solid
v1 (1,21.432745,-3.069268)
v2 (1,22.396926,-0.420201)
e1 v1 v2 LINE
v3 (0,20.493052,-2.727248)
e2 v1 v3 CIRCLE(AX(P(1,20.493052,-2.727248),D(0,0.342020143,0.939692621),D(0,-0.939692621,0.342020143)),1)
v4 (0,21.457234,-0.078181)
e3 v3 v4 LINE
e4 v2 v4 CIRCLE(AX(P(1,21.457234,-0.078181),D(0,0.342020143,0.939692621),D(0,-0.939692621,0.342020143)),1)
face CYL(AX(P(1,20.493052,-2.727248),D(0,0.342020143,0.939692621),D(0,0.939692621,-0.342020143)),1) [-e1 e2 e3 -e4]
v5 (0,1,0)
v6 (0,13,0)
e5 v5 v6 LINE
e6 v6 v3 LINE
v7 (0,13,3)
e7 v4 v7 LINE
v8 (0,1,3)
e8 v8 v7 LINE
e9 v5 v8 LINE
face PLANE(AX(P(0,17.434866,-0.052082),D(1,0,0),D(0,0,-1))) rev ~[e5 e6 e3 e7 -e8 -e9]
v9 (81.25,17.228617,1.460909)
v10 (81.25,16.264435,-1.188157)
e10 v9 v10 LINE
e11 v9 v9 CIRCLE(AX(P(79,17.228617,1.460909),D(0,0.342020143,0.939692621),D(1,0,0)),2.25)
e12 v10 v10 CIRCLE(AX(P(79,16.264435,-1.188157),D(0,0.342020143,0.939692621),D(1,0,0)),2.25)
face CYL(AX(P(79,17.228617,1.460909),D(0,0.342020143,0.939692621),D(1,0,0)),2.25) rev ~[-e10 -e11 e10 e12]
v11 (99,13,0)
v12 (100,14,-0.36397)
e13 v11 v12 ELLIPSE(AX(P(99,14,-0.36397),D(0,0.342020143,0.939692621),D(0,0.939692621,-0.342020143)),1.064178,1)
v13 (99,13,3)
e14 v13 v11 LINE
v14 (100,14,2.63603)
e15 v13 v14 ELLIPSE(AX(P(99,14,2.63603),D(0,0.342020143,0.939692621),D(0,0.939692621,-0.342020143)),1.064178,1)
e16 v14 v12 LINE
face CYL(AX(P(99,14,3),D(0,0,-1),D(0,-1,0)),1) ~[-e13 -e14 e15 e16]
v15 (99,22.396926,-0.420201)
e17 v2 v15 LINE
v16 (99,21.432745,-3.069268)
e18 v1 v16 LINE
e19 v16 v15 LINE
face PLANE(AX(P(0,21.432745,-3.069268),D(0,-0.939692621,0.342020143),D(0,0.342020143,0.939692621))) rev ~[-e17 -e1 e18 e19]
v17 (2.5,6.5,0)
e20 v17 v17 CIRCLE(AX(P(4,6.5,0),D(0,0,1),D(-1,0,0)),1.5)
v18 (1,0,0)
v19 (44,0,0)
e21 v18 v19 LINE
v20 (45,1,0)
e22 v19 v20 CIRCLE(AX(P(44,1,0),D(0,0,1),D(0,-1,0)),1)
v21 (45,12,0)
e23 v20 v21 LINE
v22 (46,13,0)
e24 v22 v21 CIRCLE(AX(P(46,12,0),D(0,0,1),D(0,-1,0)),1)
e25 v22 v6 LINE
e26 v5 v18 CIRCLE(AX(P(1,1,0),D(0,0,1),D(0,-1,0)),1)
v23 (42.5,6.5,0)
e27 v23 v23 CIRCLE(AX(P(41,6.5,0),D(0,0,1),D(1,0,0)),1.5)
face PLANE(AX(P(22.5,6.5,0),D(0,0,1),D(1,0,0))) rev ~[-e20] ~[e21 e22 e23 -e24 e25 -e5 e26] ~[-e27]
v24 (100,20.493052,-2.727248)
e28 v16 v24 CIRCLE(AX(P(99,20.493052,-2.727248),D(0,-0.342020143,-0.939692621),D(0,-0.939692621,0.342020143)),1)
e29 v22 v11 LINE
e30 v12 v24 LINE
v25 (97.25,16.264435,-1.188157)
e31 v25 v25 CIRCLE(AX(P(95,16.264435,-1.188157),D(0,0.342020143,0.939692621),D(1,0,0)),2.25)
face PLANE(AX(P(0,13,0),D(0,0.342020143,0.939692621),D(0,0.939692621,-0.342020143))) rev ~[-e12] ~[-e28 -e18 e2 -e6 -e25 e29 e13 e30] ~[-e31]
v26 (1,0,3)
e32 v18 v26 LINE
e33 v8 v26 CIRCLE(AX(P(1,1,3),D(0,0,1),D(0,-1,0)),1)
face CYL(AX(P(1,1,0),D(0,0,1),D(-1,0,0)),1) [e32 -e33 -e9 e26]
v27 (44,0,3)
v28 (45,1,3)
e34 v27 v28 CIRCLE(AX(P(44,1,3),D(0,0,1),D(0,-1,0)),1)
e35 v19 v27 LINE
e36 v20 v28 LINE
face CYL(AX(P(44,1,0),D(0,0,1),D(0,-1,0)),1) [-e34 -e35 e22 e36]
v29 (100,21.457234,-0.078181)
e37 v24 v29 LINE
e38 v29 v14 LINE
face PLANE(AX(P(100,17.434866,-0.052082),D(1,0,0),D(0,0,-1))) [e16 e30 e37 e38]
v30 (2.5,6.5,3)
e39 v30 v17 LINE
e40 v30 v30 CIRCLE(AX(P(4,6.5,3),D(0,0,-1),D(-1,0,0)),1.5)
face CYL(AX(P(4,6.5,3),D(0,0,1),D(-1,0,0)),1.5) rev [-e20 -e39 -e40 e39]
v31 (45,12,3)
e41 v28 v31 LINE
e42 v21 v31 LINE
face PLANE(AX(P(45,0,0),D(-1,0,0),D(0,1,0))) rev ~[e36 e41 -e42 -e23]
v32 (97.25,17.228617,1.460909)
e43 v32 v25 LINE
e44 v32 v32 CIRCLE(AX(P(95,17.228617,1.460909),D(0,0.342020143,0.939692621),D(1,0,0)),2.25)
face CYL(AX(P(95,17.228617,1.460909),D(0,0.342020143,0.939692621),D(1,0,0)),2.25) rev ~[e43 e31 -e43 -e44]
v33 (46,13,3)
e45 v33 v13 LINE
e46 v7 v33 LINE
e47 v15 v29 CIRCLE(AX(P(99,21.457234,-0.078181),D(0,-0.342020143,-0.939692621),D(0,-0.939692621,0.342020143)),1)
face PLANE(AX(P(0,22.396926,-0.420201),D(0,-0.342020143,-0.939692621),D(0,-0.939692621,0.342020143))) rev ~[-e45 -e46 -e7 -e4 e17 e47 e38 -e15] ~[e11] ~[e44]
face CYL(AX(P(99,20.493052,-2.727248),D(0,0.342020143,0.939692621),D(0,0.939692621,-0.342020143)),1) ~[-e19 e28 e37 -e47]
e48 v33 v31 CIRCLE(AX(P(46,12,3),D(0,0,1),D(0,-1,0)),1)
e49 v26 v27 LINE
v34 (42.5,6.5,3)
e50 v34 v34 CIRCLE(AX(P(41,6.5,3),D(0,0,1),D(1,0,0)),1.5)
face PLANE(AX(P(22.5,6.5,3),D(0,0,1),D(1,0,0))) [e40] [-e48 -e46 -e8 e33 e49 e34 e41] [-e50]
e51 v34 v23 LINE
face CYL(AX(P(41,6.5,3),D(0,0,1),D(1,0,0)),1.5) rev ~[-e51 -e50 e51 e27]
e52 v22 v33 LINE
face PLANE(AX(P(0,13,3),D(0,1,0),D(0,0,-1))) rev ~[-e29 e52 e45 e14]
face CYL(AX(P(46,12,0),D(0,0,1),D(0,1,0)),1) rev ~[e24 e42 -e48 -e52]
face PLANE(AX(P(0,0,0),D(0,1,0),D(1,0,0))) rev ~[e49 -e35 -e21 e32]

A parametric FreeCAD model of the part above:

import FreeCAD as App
import Part
import Sketcher
Q = App.Units.Quantity


def edges_at(feature, points):
    """Names of the edges that pass closest to the given points."""
    edges = feature.Shape.Edges
    near = lambda p: min(range(len(edges)), key=lambda i: edges[i].distToShape(Part.Vertex(*p))[0])
    return sorted({f"Edge{near(p) + 1}" for p in points})


def add_polygon(sketch, points):
    """Adds a closed chain of lines whose ends are joined by coincident constraints."""
    first, n = sketch.GeometryCount, len(points)
    for a, b in zip(points, points[1:] + points[:1]):
        sketch.addGeometry(Part.LineSegment(App.Vector(*a, 0), App.Vector(*b, 0)), False)
    for i in range(n):
        sketch.addConstraint(Sketcher.Constraint("Coincident", first + i, 2, first + (i + 1) % n, 1))

doc = App.newDocument("Part")
params = doc.addObject("Spreadsheet::Sheet", "Params")
for row, (alias, value) in enumerate([
    ("sketch1_width", "45 mm"),
    ("sketch1_height", "13 mm"),
    ("pad1_length", "3 mm"),
    ("sketch2_diameter", "3 mm"),
    ("sketch3_height", "3 mm"),
    ("sketch3_length", "10 mm"),
    ("pad2_length", "100 mm"),
    ("fillet_radius", "1 mm"),
    ("sketch4_diameter", "4.5 mm"),
    ("linearpattern_pitch", "16 mm"),
], start=1):
    params.set(f"A{row}", alias)
    params.set(f"B{row}", "=" + value)
    params.setAlias(f"B{row}", alias)

body = doc.addObject("PartDesign::Body", "Body")

# Sketch on XY plane
sketch1 = doc.addObject("Sketcher::SketchObject", "Sketch")
body.addObject(sketch1)
sketch1.AttachmentSupport = (doc.XY_Plane, [""])
sketch1.MapMode = "FlatFace"
add_polygon(sketch1, [(0, 13), (0, 0), (45, 0), (45, 13)])  # lines 0-3
sketch1.addConstraint([
    Sketcher.Constraint("Vertical", 0),
    Sketcher.Constraint("Horizontal", 1),
    Sketcher.Constraint("Vertical", 2),
    Sketcher.Constraint("Horizontal", 3),
    Sketcher.Constraint("Coincident", 0, 2, -1, 1),
    Sketcher.Constraint("DistanceX", 1, 1, 1, 2, 45.0),
    Sketcher.Constraint("DistanceY", 0, 2, 0, 1, 13.0),
])
sketch1.setExpression("Constraints[9]", "Params.sketch1_width")
sketch1.setExpression("Constraints[10]", "Params.sketch1_height")
pad1 = doc.addObject("PartDesign::Pad", "Pad")
body.addObject(pad1)
pad1.Profile = sketch1
pad1.setExpression("Length", "Params.pad1_length")

# Sketch on XY plane
sketch2 = doc.addObject("Sketcher::SketchObject", "Sketch001")
body.addObject(sketch2)
sketch2.AttachmentSupport = (doc.XY_Plane, [""])
sketch2.MapMode = "FlatFace"
sketch2.AttachmentOffset = App.Placement(App.Vector(0, 0, 3), App.Rotation())
sketch2.addGeometry(Part.Circle(App.Vector(41, 6.5, 0), App.Vector(0, 0, 1), 1.5), False)
sketch2.addConstraint([
    Sketcher.Constraint("Diameter", 0, 3.0),
    Sketcher.Constraint("DistanceX", -1, 1, 0, 3, 41.0),
    Sketcher.Constraint("DistanceY", -1, 1, 0, 3, 6.5),
])
sketch2.setExpression("Constraints[0]", "Params.sketch2_diameter")
pocket1 = doc.addObject("PartDesign::Pocket", "Pocket")
body.addObject(pocket1)
pocket1.Profile = sketch2
pocket1.Type = "ThroughAll"
doc.recompute()

datumplane = doc.addObject("PartDesign::Plane", "DatumPlane")
body.addObject(datumplane)
datumplane.AttachmentSupport = (doc.YZ_Plane, [""])
datumplane.MapMode = "FlatFace"
datumplane.AttachmentOffset = App.Placement(App.Vector(0, 0, 22.5), App.Rotation())
mirrored = doc.addObject("PartDesign::Mirrored", "Mirrored")
body.addObject(mirrored)
mirrored.Originals = [pocket1]
mirrored.MirrorPlane = (datumplane, [""])
body.Tip = mirrored

# Sketch on YZ plane
sketch3 = doc.addObject("Sketcher::SketchObject", "Sketch002")
body.addObject(sketch3)
sketch3.AttachmentSupport = (doc.YZ_Plane, [""])
sketch3.MapMode = "FlatFace"
add_polygon(sketch3, [(21.4, -3.1), (13, 0), (13, 3), (22.4, -0.4)])  # lines 0-3
sketch3.addConstraint([
    Sketcher.Constraint("Vertical", 1),
    Sketcher.Constraint("PointOnObject", 0, 2, -1),
    Sketcher.Constraint("Parallel", 0, 2),
    Sketcher.Constraint("Perpendicular", 2, 3),
    Sketcher.Constraint("DistanceY", 1, 1, 1, 2, 3.0),
    Sketcher.Constraint("Angle", 0, Q("160 deg")),
    Sketcher.Constraint("Distance", 2, 10.0),
    Sketcher.Constraint("DistanceX", -1, 1, 0, 2, 13.0),
])
sketch3.setExpression("Constraints[8]", "Params.sketch3_height")
sketch3.setExpression("Constraints[10]", "Params.sketch3_length")
pad2 = doc.addObject("PartDesign::Pad", "Pad001")
body.addObject(pad2)
pad2.Profile = sketch3
pad2.setExpression("Length", "Params.pad2_length")
doc.recompute()

fillet = doc.addObject("PartDesign::Fillet", "Fillet")
body.addObject(fillet)
fillet.Base = (pad2, edges_at(pad2, [
    (45, 0, 1.5),
    (0, 0, 1.5),
    (45, 13, 1.5),
    (100, 13, 1.5),
    (100, 21.915, -1.745),
    (0, 21.915, -1.745),
]))
fillet.setExpression("Radius", "Params.fillet_radius")

# Sketch on an angled plane
sketch4 = doc.addObject("Sketcher::SketchObject", "Sketch003")
body.addObject(sketch4)
sketch4.Placement = App.Placement(App.Vector(0, 2.484893, 6.827186), App.Rotation(App.Vector(1, 0, 0), App.Vector(0, 0.939692621, -0.342020143), App.Vector(0, 0.342020143, 0.939692621), "ZXY"))
sketch4.addGeometry(Part.Circle(App.Vector(95, 15.7, 0), App.Vector(0, 0, 1), 2.2), False)
sketch4.addConstraint([
    Sketcher.Constraint("Diameter", 0, 4.5),
    Sketcher.Constraint("DistanceX", -1, 1, 0, 3, 95.0),
    Sketcher.Constraint("DistanceY", -1, 1, 0, 3, 15.689944),
])
sketch4.setExpression("Constraints[0]", "Params.sketch4_diameter")
pocket2 = doc.addObject("PartDesign::Pocket", "Pocket001")
body.addObject(pocket2)
pocket2.Profile = sketch4
pocket2.Type = "ThroughAll"
doc.recompute()

linearpattern = doc.addObject("PartDesign::LinearPattern", "LinearPattern")
body.addObject(linearpattern)
linearpattern.Originals = [pocket2]
linearpattern.Direction = (doc.X_Axis, [""])
linearpattern.Mode = "offset"
linearpattern.setExpression("Offset", "Params.linearpattern_pitch")
linearpattern.Occurrences = 2
linearpattern.Reversed = True
body.Tip = linearpattern

doc.recompute()
